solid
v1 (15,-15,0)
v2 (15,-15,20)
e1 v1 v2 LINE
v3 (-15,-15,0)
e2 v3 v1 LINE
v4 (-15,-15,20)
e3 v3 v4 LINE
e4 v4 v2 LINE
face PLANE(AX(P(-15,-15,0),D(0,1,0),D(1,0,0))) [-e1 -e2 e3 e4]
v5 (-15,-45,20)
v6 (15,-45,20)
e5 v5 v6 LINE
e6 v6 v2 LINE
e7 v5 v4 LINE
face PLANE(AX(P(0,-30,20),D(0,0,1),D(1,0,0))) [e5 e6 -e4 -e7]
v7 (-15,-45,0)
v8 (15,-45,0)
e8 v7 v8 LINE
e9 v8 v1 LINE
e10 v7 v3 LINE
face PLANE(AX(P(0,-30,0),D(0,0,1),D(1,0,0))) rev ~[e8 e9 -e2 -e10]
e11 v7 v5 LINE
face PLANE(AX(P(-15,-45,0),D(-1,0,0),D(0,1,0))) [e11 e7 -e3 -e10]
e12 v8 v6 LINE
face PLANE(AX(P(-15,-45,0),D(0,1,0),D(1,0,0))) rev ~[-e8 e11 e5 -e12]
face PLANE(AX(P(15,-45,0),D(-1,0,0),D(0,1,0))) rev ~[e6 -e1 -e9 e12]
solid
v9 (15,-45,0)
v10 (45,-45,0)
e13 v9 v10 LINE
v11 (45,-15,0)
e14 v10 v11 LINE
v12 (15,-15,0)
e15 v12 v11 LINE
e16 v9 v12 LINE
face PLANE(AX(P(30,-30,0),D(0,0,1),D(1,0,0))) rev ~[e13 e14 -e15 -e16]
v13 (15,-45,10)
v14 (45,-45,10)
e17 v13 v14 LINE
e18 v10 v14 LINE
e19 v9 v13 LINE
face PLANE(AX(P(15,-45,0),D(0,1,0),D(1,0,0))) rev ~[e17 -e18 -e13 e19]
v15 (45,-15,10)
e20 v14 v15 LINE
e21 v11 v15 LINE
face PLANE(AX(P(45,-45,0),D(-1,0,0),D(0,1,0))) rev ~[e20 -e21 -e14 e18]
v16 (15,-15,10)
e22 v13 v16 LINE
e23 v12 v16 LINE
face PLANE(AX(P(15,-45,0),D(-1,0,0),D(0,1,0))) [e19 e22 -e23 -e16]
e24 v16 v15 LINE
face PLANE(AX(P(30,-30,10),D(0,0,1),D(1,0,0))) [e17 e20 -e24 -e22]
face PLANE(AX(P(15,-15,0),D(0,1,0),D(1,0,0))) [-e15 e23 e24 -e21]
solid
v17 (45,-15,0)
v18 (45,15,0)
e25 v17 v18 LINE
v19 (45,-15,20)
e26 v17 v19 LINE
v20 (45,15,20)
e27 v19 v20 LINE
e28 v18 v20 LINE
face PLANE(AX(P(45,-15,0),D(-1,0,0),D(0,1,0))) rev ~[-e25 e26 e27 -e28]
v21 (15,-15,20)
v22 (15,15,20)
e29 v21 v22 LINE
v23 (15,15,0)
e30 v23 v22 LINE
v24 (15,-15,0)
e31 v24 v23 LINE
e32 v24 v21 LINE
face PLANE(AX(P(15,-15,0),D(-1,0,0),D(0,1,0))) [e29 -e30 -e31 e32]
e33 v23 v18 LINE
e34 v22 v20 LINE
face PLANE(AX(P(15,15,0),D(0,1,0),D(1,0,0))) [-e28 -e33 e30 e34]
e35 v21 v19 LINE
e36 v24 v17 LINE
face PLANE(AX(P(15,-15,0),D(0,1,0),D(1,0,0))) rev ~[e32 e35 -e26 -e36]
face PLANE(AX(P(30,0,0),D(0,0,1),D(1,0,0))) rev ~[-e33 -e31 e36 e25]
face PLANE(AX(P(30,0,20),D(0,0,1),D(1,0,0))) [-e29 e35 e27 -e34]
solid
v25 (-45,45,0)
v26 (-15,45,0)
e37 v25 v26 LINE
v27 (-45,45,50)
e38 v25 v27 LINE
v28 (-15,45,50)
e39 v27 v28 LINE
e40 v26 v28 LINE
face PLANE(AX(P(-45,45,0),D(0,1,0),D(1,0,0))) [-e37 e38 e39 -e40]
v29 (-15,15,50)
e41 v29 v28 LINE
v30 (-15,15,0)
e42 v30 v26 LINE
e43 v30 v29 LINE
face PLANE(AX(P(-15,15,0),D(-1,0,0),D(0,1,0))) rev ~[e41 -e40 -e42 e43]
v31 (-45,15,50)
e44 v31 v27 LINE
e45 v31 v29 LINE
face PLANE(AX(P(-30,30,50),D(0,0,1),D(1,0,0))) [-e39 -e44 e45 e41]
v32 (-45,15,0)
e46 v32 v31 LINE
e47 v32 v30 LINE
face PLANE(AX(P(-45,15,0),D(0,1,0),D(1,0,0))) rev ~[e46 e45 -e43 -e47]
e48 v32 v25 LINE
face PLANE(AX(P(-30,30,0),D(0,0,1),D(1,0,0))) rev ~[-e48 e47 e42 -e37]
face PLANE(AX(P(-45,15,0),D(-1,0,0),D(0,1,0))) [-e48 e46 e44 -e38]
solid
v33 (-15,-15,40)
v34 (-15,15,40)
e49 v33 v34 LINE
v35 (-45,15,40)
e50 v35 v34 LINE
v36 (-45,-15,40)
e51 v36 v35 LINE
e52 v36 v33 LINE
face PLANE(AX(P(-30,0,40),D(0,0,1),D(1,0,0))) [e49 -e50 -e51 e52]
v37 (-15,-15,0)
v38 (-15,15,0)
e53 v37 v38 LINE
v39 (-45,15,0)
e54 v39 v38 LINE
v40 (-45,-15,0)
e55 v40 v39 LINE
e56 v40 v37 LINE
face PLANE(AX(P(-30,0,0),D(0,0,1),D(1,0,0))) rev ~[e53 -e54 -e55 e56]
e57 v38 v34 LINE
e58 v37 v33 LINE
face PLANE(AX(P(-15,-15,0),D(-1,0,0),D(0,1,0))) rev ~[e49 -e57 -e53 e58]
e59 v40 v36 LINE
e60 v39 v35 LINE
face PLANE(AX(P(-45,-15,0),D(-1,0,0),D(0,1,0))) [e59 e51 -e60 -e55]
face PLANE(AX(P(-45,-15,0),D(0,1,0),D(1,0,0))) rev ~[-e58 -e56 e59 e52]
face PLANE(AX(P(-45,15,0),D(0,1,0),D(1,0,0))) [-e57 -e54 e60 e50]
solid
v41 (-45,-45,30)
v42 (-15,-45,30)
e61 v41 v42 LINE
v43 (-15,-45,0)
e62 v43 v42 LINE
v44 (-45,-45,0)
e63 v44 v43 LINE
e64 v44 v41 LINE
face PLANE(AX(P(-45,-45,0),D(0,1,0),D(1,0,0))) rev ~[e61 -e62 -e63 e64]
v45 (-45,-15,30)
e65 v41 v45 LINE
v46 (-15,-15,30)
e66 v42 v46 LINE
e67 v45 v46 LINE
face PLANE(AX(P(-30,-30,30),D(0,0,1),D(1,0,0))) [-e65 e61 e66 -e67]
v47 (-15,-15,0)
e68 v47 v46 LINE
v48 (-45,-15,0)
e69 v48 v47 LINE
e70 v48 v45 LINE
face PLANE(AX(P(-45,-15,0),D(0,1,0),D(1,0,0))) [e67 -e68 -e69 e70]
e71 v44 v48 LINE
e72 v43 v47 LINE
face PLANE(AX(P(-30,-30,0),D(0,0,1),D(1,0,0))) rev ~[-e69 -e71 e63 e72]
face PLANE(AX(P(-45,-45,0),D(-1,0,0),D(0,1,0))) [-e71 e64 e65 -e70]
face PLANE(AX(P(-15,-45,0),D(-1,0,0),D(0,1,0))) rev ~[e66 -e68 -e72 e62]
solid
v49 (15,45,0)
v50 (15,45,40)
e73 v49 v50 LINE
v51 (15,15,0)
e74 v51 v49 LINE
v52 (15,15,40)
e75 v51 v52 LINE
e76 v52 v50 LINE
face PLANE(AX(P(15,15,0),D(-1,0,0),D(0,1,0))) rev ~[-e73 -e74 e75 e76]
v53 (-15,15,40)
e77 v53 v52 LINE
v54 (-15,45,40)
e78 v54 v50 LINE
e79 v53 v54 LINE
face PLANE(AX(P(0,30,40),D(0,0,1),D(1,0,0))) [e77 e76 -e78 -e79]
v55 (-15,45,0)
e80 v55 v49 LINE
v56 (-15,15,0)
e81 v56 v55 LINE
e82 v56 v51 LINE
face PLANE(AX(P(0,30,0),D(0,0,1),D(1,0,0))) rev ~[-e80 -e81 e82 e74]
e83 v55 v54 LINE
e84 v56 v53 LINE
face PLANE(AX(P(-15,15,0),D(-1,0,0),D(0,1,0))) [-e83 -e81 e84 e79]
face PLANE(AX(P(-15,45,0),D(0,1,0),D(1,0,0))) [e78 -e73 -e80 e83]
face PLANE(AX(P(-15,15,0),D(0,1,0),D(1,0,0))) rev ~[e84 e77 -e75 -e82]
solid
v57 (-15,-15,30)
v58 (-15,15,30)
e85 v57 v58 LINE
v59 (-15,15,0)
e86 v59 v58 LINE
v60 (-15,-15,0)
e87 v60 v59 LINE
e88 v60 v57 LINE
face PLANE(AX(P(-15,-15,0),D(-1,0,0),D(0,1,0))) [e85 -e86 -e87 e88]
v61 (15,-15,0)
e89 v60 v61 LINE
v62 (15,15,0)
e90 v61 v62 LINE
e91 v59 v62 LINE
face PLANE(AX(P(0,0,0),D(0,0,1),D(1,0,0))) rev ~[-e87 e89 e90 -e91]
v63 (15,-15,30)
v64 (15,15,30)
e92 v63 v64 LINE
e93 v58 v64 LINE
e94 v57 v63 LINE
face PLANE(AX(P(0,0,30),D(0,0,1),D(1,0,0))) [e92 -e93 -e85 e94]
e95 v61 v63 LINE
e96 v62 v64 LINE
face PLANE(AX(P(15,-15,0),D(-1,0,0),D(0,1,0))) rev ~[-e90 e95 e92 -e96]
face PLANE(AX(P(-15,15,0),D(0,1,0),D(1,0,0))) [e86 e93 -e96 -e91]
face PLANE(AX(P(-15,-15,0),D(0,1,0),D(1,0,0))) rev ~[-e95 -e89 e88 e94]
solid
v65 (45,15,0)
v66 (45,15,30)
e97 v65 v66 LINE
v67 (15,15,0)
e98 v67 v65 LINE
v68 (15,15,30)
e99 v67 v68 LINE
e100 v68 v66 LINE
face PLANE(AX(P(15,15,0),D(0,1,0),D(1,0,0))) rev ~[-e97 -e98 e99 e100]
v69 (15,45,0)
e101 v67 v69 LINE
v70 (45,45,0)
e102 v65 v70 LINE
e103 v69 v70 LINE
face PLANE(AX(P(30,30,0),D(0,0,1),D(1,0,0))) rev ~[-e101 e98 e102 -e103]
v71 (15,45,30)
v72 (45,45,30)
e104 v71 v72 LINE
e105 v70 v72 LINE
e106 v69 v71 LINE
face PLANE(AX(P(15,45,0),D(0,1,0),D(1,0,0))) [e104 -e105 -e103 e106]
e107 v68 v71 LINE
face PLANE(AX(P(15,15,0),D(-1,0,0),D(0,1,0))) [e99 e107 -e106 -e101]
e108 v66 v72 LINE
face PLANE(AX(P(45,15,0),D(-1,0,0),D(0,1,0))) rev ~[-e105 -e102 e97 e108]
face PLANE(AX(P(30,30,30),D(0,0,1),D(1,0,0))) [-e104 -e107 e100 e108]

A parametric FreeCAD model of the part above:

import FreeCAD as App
import Part
import Sketcher

V = App.Vector
Q = App.Units.Quantity


def add_polygon(sketch, points):
    """Adds a closed chain of lines whose ends are joined by coincident constraints."""
    first, n = sketch.GeometryCount, len(points)
    for a, b in zip(points, points[1:] + points[:1]):
        sketch.addGeometry(Part.LineSegment(App.Vector(*a, 0), App.Vector(*b, 0)), False)
    for i in range(n):
        sketch.addConstraint(Sketcher.Constraint("Coincident", first + i, 2, first + (i + 1) % n, 1))

doc = App.newDocument("Part")
body = doc.addObject("PartDesign::Body", "Body")

sketch1 = doc.addObject("Sketcher::SketchObject", "Sketch")
body.addObject(sketch1)
sketch1.AttachmentSupport = (doc.XY_Plane, [""])
sketch1.MapMode = "FlatFace"
add_polygon(sketch1, [(15, -15), (15, -45), (45, -45), (45, -15)])
sketch1.addConstraint([
    Sketcher.Constraint("Vertical", 0),
    Sketcher.Constraint("Horizontal", 1),
    Sketcher.Constraint("Vertical", 2),
    Sketcher.Constraint("Horizontal", 3),
    Sketcher.Constraint("Equal", 3, 0),
    Sketcher.Constraint("DistanceX", 1, 1, 1, 2, Q("30 mm")),
    Sketcher.Constraint("DistanceX", -1, 1, 0, 2, Q("15 mm")),
    Sketcher.Constraint("DistanceY", 0, 2, -1, 1, Q("45 mm")),
])
pad1 = doc.addObject("PartDesign::Pad", "Pad")
body.addObject(pad1)
pad1.Profile = sketch1
pad1.Length = 10
body2 = doc.addObject("PartDesign::Body", "Body001")

sketch2 = doc.addObject("Sketcher::SketchObject", "Sketch001")
body2.addObject(sketch2)
sketch2.AttachmentSupport = (doc.getObject("XY_Plane001"), [""])
sketch2.MapMode = "FlatFace"
add_polygon(sketch2, [(-15, -15), (-15, -45), (15, -45), (15, -15)])
sketch2.addConstraint([
    Sketcher.Constraint("Vertical", 0),
    Sketcher.Constraint("Horizontal", 1),
    Sketcher.Constraint("Vertical", 2),
    Sketcher.Constraint("Horizontal", 3),
    Sketcher.Constraint("Equal", 3, 0),
    Sketcher.Constraint("DistanceX", 1, 1, 1, 2, Q("30 mm")),
    Sketcher.Constraint("DistanceX", 0, 2, -1, 1, Q("15 mm")),
    Sketcher.Constraint("DistanceY", 0, 2, -1, 1, Q("45 mm")),
])
pad2 = doc.addObject("PartDesign::Pad", "Pad001")
body2.addObject(pad2)
pad2.Profile = sketch2
pad2.Length = 20
body3 = doc.addObject("PartDesign::Body", "Body002")

sketch3 = doc.addObject("Sketcher::SketchObject", "Sketch002")
body3.addObject(sketch3)
sketch3.AttachmentSupport = (doc.getObject("XY_Plane002"), [""])
sketch3.MapMode = "FlatFace"
add_polygon(sketch3, [(15, 15), (15, -15), (45, -15), (45, 15)])
sketch3.addConstraint([
    Sketcher.Constraint("Vertical", 0),
    Sketcher.Constraint("Horizontal", 1),
    Sketcher.Constraint("Vertical", 2),
    Sketcher.Constraint("Horizontal", 3),
    Sketcher.Constraint("Equal", 3, 0),
    Sketcher.Constraint("DistanceX", 1, 1, 1, 2, Q("30 mm")),
    Sketcher.Constraint("DistanceX", -1, 1, 0, 2, Q("15 mm")),
    Sketcher.Constraint("DistanceY", 0, 2, -1, 1, Q("15 mm")),
])
pad3 = doc.addObject("PartDesign::Pad", "Pad002")
body3.addObject(pad3)
pad3.Profile = sketch3
pad3.Length = 20
body4 = doc.addObject("PartDesign::Body", "Body003")

sketch4 = doc.addObject("Sketcher::SketchObject", "Sketch003")
body4.addObject(sketch4)
sketch4.AttachmentSupport = (doc.getObject("XY_Plane003"), [""])
sketch4.MapMode = "FlatFace"
add_polygon(sketch4, [(-45, -15), (-45, -45), (-15, -45), (-15, -15)])
sketch4.addConstraint([
    Sketcher.Constraint("Vertical", 0),
    Sketcher.Constraint("Horizontal", 1),
    Sketcher.Constraint("Vertical", 2),
    Sketcher.Constraint("Horizontal", 3),
    Sketcher.Constraint("Equal", 3, 0),
    Sketcher.Constraint("DistanceX", 1, 1, 1, 2, Q("30 mm")),
    Sketcher.Constraint("DistanceX", 0, 2, -1, 1, Q("45 mm")),
    Sketcher.Constraint("DistanceY", 0, 2, -1, 1, Q("45 mm")),
])
pad4 = doc.addObject("PartDesign::Pad", "Pad003")
body4.addObject(pad4)
pad4.Profile = sketch4
pad4.Length = 30
body5 = doc.addObject("PartDesign::Body", "Body004")

sketch5 = doc.addObject("Sketcher::SketchObject", "Sketch004")
body5.addObject(sketch5)
sketch5.AttachmentSupport = (doc.getObject("XY_Plane004"), [""])
sketch5.MapMode = "FlatFace"
add_polygon(sketch5, [(-15, 15), (-15, -15), (15, -15), (15, 15)])
sketch5.addConstraint([
    Sketcher.Constraint("Vertical", 0),
    Sketcher.Constraint("Horizontal", 1),
    Sketcher.Constraint("Vertical", 2),
    Sketcher.Constraint("Horizontal", 3),
    Sketcher.Constraint("Symmetric", 0, 2, 2, 2, -1, 1),
    Sketcher.Constraint("Equal", 3, 0),
    Sketcher.Constraint("DistanceX", 1, 1, 1, 2, Q("30 mm")),
])
pad5 = doc.addObject("PartDesign::Pad", "Pad004")
body5.addObject(pad5)
pad5.Profile = sketch5
pad5.Length = 30
body6 = doc.addObject("PartDesign::Body", "Body005")

sketch6 = doc.addObject("Sketcher::SketchObject", "Sketch005")
body6.addObject(sketch6)
sketch6.AttachmentSupport = (doc.getObject("XY_Plane005"), [""])
sketch6.MapMode = "FlatFace"
add_polygon(sketch6, [(15, 45), (15, 15), (45, 15), (45, 45)])
sketch6.addConstraint([
    Sketcher.Constraint("Vertical", 0),
    Sketcher.Constraint("Horizontal", 1),
    Sketcher.Constraint("Vertical", 2),
    Sketcher.Constraint("Horizontal", 3),
    Sketcher.Constraint("Equal", 3, 0),
    Sketcher.Constraint("DistanceX", 1, 1, 1, 2, Q("30 mm")),
    Sketcher.Constraint("DistanceX", -1, 1, 0, 2, Q("15 mm")),
    Sketcher.Constraint("DistanceY", -1, 1, 0, 2, Q("15 mm")),
])
pad6 = doc.addObject("PartDesign::Pad", "Pad005")
body6.addObject(pad6)
pad6.Profile = sketch6
pad6.Length = 30
body7 = doc.addObject("PartDesign::Body", "Body006")

sketch7 = doc.addObject("Sketcher::SketchObject", "Sketch006")
body7.addObject(sketch7)
sketch7.AttachmentSupport = (doc.getObject("XY_Plane006"), [""])
sketch7.MapMode = "FlatFace"
add_polygon(sketch7, [(-45, 15), (-45, -15), (-15, -15), (-15, 15)])
sketch7.addConstraint([
    Sketcher.Constraint("Vertical", 0),
    Sketcher.Constraint("Horizontal", 1),
    Sketcher.Constraint("Vertical", 2),
    Sketcher.Constraint("Horizontal", 3),
    Sketcher.Constraint("Equal", 3, 0),
    Sketcher.Constraint("DistanceX", 1, 1, 1, 2, Q("30 mm")),
    Sketcher.Constraint("DistanceX", 0, 2, -1, 1, Q("45 mm")),
    Sketcher.Constraint("DistanceY", 0, 2, -1, 1, Q("15 mm")),
])
pad7 = doc.addObject("PartDesign::Pad", "Pad006")
body7.addObject(pad7)
pad7.Profile = sketch7
pad7.Length = 40
body8 = doc.addObject("PartDesign::Body", "Body007")

sketch8 = doc.addObject("Sketcher::SketchObject", "Sketch007")
body8.addObject(sketch8)
sketch8.AttachmentSupport = (doc.getObject("XY_Plane007"), [""])
sketch8.MapMode = "FlatFace"
add_polygon(sketch8, [(-15, 45), (-15, 15), (15, 15), (15, 45)])
sketch8.addConstraint([
    Sketcher.Constraint("Vertical", 0),
    Sketcher.Constraint("Horizontal", 1),
    Sketcher.Constraint("Vertical", 2),
    Sketcher.Constraint("Horizontal", 3),
    Sketcher.Constraint("Equal", 3, 0),
    Sketcher.Constraint("DistanceX", 1, 1, 1, 2, Q("30 mm")),
    Sketcher.Constraint("DistanceX", 0, 2, -1, 1, Q("15 mm")),
    Sketcher.Constraint("DistanceY", -1, 1, 0, 2, Q("15 mm")),
])
pad8 = doc.addObject("PartDesign::Pad", "Pad007")
body8.addObject(pad8)
pad8.Profile = sketch8
pad8.Length = 40
body9 = doc.addObject("PartDesign::Body", "Body008")

sketch9 = doc.addObject("Sketcher::SketchObject", "Sketch008")
body9.addObject(sketch9)
sketch9.AttachmentSupport = (doc.getObject("XY_Plane008"), [""])
sketch9.MapMode = "FlatFace"
add_polygon(sketch9, [(-45, 45), (-45, 15), (-15, 15), (-15, 45)])
sketch9.addConstraint([
    Sketcher.Constraint("Vertical", 0),
    Sketcher.Constraint("Horizontal", 1),
    Sketcher.Constraint("Vertical", 2),
    Sketcher.Constraint("Horizontal", 3),
    Sketcher.Constraint("Equal", 3, 0),
    Sketcher.Constraint("DistanceX", 1, 1, 1, 2, Q("30 mm")),
    Sketcher.Constraint("DistanceX", 0, 2, -1, 1, Q("45 mm")),
    Sketcher.Constraint("DistanceY", -1, 1, 0, 2, Q("15 mm")),
])
pad9 = doc.addObject("PartDesign::Pad", "Pad008")
body9.addObject(pad9)
pad9.Profile = sketch9
pad9.Length = 50

doc.recompute()
